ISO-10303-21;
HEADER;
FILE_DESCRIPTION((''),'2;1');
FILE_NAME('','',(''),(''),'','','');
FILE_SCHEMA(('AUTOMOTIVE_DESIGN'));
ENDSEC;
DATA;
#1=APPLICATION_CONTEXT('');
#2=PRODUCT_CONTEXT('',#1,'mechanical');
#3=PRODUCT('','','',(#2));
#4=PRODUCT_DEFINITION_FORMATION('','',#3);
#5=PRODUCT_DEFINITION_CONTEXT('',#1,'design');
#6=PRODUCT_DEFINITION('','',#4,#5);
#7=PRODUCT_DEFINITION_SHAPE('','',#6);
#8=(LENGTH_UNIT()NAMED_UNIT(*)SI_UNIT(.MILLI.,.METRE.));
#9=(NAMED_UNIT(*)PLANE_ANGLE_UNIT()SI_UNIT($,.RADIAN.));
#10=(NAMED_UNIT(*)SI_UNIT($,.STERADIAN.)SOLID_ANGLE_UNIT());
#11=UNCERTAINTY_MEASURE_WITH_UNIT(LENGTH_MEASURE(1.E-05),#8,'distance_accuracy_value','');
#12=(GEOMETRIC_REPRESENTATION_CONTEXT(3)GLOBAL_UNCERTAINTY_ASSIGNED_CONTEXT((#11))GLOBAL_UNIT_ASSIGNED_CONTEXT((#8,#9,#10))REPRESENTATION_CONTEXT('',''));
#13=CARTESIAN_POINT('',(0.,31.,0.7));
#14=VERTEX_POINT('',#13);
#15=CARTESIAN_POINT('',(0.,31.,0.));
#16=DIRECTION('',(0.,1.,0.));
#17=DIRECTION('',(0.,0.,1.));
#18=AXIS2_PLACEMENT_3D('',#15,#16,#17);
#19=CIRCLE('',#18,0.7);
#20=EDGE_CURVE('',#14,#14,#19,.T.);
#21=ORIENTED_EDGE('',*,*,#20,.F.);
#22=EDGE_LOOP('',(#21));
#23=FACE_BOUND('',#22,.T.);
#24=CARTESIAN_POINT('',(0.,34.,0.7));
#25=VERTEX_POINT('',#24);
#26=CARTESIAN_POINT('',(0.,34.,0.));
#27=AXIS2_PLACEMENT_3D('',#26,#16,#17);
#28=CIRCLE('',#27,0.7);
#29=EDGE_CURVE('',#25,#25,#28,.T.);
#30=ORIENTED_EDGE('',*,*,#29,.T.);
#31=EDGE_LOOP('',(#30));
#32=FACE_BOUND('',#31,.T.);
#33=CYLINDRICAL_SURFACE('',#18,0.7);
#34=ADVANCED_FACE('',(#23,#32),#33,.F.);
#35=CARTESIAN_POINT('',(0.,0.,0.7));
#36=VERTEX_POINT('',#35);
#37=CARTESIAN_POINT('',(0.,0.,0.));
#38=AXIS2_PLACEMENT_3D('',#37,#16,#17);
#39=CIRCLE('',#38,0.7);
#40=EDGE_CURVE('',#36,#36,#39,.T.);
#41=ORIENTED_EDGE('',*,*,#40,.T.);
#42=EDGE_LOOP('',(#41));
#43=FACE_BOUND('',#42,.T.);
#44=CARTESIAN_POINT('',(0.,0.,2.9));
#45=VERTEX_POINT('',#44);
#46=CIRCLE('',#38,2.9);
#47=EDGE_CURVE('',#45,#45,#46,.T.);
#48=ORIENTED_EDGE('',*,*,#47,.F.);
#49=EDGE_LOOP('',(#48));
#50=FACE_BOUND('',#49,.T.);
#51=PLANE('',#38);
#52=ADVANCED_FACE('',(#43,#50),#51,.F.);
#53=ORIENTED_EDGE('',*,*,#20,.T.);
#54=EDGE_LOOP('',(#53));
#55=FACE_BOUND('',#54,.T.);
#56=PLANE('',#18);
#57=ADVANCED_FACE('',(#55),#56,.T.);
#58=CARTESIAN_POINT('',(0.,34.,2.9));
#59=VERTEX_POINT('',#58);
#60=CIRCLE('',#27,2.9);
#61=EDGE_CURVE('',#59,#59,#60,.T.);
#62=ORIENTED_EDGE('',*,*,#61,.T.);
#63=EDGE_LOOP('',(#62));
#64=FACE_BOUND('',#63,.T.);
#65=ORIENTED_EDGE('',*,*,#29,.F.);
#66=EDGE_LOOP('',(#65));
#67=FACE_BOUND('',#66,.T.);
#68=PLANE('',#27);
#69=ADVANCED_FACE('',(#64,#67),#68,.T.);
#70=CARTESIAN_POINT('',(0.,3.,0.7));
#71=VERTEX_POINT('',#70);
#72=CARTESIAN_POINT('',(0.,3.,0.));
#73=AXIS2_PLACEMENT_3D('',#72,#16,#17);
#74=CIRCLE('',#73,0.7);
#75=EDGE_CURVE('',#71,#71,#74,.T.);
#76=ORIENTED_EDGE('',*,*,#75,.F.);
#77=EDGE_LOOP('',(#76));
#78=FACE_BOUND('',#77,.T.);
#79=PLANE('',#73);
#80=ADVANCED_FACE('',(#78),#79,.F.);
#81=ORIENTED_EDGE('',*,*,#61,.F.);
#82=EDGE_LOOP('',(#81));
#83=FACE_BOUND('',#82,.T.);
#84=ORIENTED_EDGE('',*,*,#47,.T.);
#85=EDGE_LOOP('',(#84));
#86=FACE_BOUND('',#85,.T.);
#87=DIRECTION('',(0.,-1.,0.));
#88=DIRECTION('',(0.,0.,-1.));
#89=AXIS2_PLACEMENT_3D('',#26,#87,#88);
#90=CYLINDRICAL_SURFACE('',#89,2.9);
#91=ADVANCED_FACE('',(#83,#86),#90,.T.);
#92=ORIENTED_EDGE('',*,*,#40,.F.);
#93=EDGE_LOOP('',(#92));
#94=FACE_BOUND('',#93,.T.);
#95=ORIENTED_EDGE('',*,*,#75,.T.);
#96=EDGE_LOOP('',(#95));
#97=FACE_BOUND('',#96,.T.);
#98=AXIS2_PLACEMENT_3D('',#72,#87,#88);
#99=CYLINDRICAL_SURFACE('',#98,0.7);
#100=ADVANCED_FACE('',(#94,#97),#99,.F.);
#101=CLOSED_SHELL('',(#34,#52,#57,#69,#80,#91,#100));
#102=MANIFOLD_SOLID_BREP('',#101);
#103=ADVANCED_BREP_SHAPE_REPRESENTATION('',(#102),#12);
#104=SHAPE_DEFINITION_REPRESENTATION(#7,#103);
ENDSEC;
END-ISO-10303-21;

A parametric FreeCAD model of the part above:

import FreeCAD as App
import Part
import Sketcher

V = App.Vector

doc = App.newDocument("Part")
body = doc.addObject("PartDesign::Body", "Body")

# Sketch on XZ plane
sketch1 = body.newObject("Sketcher::SketchObject", "Sketch")
sketch1.AttachmentSupport = (doc.getObject("XZ_Plane"), [""])
sketch1.MapMode = "FlatFace"
sketch1.addGeometry(Part.Circle(V(0, 0, 0), V(0, 0, 1), 2.9), False)
sketch1.addConstraint([
    Sketcher.Constraint("Coincident", 0, 3, -1, 1),
    Sketcher.Constraint("Diameter", 0, 5.8),
])
pad1 = body.newObject("PartDesign::Pad", "Pad")
pad1.Profile = sketch1
pad1.Length = 34
pad1.Reversed = True

# Sketch on XZ plane
sketch2 = body.newObject("Sketcher::SketchObject", "Sketch001")
sketch2.AttachmentSupport = (doc.getObject("XZ_Plane"), [""])
sketch2.MapMode = "FlatFace"
sketch2.addGeometry(Part.Circle(V(0, 0, 0), V(0, 0, 1), 0.7), False)
sketch2.addConstraint([
    Sketcher.Constraint("Coincident", 0, 3, -1, 1),
    Sketcher.Constraint("Diameter", 0, 1.4),
])
pocket1 = body.newObject("PartDesign::Pocket", "Pocket")
pocket1.Profile = sketch2
pocket1.Length = 3

# Sketch on XZ plane
sketch3 = body.newObject("Sketcher::SketchObject", "Sketch002")
sketch3.AttachmentSupport = (doc.getObject("XZ_Plane"), [""])
sketch3.MapMode = "FlatFace"
sketch3.AttachmentOffset = App.Placement(V(0, 0, -31), App.Rotation())
sketch3.addGeometry(Part.Circle(V(0, 0, 0), V(0, 0, 1), 0.7), False)
sketch3.addConstraint([
    Sketcher.Constraint("Coincident", 0, 3, -1, 1),
    Sketcher.Constraint("Diameter", 0, 1.4),
])
pocket2 = body.newObject("PartDesign::Pocket", "Pocket001")
pocket2.Profile = sketch3
pocket2.Length = 3

doc.recompute()
